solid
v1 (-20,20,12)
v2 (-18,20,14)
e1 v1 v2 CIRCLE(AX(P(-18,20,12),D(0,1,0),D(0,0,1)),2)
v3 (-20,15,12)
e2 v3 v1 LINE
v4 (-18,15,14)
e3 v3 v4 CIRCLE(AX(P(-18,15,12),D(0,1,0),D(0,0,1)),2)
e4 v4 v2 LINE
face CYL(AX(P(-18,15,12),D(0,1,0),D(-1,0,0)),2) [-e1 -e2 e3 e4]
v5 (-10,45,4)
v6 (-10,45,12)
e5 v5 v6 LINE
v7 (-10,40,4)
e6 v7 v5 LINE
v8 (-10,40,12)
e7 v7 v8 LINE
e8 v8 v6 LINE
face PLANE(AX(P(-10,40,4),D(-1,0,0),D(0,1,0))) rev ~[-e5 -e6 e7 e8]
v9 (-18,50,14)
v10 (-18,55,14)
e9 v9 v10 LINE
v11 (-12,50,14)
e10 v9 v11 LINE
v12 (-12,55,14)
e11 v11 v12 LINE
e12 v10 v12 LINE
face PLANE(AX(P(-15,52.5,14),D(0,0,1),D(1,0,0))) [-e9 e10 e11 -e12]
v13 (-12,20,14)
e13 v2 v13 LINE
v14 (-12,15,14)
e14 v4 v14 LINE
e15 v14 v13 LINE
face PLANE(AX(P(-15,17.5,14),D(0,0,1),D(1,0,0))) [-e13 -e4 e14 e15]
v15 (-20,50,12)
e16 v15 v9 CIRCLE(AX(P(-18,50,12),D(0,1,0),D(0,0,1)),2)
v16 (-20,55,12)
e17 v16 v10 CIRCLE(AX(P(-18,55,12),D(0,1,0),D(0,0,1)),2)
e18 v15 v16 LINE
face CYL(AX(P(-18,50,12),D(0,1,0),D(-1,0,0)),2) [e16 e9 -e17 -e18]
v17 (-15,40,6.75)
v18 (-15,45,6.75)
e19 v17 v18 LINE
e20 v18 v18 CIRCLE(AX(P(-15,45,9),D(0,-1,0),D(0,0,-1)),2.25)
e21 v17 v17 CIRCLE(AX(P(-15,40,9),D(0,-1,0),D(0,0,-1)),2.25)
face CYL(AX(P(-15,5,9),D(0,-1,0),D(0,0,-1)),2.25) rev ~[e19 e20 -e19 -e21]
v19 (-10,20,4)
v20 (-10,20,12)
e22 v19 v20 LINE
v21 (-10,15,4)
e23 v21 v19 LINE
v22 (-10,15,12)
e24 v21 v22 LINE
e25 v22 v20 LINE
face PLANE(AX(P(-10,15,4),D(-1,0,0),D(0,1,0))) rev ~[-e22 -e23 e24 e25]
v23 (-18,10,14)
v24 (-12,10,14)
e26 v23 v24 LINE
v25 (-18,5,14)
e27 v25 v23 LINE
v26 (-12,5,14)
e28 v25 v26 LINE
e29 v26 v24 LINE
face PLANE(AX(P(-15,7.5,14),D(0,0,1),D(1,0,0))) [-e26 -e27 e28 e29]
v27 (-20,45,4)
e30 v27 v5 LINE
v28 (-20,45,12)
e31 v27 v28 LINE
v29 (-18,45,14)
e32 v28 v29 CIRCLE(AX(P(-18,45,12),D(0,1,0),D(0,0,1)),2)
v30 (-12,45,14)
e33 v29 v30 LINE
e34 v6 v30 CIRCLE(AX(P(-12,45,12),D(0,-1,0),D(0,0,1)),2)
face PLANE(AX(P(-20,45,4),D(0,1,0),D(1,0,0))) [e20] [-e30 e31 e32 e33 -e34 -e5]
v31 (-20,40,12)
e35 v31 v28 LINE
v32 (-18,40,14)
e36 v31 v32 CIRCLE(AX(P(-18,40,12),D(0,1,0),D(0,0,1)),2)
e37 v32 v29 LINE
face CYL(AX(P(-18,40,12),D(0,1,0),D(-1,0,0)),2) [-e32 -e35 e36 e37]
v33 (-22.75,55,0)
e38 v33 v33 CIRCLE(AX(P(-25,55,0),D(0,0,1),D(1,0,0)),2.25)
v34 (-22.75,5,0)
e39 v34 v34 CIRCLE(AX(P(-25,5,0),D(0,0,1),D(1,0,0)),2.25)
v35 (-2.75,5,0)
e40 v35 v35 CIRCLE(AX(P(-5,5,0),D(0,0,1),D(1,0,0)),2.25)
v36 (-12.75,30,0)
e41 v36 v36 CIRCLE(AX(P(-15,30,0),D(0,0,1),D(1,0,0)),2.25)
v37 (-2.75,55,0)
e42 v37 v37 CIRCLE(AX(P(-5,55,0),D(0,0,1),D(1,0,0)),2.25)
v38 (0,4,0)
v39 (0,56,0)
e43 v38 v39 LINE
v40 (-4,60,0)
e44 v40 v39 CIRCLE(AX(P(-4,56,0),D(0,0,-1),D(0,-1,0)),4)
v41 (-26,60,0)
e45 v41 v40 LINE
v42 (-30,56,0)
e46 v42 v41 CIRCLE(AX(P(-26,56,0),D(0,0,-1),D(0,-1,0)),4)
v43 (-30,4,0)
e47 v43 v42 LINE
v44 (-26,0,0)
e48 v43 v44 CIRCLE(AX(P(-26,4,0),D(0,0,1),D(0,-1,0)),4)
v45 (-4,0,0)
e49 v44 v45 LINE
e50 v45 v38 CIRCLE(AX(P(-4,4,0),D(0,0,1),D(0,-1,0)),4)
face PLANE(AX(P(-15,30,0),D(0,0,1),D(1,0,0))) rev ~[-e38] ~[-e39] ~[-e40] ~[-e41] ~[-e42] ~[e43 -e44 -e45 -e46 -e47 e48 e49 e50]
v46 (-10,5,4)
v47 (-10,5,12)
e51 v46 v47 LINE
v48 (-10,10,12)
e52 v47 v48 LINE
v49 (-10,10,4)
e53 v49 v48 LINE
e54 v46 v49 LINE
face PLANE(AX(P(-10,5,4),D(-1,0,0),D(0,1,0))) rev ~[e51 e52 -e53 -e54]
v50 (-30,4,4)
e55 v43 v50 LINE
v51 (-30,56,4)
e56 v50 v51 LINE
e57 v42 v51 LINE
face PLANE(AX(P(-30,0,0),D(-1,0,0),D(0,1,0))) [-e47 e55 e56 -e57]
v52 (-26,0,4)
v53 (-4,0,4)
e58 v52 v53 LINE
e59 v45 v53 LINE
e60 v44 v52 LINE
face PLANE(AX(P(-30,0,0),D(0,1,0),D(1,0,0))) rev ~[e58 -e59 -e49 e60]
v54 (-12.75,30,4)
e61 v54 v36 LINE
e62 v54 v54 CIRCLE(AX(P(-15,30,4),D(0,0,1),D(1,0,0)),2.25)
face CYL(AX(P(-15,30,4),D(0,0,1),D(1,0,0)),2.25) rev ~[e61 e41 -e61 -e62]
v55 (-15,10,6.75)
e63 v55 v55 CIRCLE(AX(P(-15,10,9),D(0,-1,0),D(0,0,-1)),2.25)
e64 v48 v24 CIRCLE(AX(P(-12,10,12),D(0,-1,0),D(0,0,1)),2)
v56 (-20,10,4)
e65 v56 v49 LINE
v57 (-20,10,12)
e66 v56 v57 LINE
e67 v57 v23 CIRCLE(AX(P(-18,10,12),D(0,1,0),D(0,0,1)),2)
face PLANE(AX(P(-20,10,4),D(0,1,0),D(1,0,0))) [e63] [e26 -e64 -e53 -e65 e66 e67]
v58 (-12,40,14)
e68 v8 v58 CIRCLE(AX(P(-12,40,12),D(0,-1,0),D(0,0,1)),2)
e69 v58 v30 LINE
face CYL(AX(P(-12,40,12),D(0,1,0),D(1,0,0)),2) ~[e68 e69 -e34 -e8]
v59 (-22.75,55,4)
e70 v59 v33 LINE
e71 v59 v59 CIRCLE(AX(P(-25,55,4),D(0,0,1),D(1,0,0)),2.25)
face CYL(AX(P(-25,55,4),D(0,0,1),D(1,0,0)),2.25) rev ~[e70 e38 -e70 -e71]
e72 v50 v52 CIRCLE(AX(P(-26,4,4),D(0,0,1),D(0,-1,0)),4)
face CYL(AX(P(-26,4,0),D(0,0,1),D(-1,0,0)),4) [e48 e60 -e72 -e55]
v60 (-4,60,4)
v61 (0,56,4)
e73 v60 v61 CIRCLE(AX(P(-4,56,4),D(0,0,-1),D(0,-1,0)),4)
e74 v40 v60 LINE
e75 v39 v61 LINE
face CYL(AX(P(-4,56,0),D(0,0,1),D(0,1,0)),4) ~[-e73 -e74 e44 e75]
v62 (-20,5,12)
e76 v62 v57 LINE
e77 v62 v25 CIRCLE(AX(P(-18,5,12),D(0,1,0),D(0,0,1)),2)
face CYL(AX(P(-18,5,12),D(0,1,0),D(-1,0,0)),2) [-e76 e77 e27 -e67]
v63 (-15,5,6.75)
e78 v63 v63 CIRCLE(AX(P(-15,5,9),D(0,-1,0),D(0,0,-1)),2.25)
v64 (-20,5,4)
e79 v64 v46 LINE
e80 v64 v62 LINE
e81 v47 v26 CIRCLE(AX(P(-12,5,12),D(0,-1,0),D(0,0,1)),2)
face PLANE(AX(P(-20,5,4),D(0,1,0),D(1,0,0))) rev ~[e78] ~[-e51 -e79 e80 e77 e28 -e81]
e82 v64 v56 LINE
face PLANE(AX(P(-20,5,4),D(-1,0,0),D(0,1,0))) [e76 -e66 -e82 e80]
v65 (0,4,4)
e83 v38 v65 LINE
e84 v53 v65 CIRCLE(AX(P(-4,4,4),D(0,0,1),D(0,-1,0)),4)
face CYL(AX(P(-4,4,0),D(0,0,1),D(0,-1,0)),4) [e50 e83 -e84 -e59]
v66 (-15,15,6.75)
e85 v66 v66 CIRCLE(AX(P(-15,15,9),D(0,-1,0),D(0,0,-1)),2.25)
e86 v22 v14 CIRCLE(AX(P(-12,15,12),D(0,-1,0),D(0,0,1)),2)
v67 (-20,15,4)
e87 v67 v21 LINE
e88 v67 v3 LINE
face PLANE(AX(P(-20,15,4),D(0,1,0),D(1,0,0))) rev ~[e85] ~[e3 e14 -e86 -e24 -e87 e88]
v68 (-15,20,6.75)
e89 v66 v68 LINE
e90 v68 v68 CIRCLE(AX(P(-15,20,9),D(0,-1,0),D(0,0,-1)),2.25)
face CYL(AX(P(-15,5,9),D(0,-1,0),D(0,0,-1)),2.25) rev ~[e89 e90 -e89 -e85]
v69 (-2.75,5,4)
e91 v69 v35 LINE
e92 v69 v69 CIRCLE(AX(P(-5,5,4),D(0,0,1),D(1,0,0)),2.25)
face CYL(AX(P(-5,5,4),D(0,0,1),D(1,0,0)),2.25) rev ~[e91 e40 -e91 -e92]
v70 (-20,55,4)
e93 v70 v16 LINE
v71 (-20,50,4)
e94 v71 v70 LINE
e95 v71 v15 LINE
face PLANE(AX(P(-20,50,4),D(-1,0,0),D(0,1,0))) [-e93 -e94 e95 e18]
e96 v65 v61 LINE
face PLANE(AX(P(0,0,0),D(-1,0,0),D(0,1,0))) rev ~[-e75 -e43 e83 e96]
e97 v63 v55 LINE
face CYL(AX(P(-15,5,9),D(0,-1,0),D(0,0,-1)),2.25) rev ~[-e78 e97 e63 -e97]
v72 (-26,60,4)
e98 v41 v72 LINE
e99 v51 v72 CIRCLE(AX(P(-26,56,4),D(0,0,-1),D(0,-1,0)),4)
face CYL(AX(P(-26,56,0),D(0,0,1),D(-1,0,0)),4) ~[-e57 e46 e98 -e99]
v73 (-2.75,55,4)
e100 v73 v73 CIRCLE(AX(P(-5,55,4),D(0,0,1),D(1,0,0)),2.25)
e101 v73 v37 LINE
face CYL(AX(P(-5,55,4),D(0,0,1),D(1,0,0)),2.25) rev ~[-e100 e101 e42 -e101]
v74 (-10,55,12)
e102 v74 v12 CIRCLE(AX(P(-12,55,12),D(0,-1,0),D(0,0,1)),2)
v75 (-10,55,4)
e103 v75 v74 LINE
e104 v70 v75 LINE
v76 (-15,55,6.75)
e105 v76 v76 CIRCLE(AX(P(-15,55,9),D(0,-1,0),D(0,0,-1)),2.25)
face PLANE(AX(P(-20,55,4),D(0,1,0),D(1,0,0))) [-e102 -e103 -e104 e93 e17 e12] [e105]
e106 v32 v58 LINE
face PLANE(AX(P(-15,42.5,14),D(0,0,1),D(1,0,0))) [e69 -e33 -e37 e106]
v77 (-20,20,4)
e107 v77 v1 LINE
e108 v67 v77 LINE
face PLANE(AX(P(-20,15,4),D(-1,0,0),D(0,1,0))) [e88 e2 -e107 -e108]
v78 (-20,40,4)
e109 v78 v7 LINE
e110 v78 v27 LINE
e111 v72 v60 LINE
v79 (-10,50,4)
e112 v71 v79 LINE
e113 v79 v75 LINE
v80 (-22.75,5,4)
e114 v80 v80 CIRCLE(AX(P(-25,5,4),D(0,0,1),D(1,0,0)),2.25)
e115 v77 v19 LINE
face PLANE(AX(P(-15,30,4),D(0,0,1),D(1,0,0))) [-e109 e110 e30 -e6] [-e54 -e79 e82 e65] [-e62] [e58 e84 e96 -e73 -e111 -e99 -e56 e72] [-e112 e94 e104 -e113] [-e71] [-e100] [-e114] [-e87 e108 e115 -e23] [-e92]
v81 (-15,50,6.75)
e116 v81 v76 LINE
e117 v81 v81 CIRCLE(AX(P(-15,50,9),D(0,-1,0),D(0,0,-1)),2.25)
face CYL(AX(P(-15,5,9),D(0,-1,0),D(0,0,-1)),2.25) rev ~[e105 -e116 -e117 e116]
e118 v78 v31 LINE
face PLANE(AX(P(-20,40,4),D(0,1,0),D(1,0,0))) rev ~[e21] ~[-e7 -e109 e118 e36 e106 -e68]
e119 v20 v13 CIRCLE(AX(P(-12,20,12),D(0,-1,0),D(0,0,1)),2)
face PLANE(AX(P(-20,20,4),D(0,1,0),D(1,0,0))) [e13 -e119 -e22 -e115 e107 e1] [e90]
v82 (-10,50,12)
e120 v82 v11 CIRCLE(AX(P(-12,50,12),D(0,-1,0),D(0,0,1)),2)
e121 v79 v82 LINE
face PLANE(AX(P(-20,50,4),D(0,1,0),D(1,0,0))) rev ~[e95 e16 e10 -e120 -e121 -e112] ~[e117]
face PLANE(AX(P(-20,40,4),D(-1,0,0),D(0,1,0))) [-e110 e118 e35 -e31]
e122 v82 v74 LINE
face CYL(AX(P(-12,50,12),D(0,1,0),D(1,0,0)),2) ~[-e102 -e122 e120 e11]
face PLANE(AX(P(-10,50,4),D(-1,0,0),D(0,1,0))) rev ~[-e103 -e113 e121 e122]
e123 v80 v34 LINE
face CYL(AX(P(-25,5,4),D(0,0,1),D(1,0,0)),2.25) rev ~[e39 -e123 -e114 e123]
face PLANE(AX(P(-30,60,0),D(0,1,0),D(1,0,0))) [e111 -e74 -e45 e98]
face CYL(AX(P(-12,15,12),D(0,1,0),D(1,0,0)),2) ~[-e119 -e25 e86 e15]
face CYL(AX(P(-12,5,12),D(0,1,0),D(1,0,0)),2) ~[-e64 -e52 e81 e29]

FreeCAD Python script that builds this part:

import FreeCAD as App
import Part
import Sketcher

V = App.Vector
Q = App.Units.Quantity


def edges_at(feature, points):
    """Names of the edges that pass closest to the given points."""
    edges = feature.Shape.Edges
    near = lambda p: min(range(len(edges)), key=lambda i: edges[i].distToShape(Part.Vertex(*p))[0])
    return sorted({f"Edge{near(p) + 1}" for p in points})

doc = App.newDocument("Part")
body = doc.addObject("PartDesign::Body", "Body")

sketch1 = doc.addObject("Sketcher::SketchObject", "Sketch")
body.addObject(sketch1)
sketch1.AttachmentSupport = (doc.XY_Plane, [""])
sketch1.MapMode = "FlatFace"
sketch1.addGeometry([
    Part.LineSegment(V(-30, 60, 0), V(-30, 0, 0)),
    Part.LineSegment(V(-30, 0, 0), V(0, 0, 0)),
    Part.LineSegment(V(0, 0, 0), V(0, 60, 0)),
    Part.LineSegment(V(0, 60, 0), V(-30, 60, 0)),
], False)
sketch1.addConstraint([
    Sketcher.Constraint("Coincident", 0, 2, 1, 1),
    Sketcher.Constraint("Coincident", 1, 2, 2, 1),
    Sketcher.Constraint("Coincident", 2, 2, 3, 1),
    Sketcher.Constraint("Coincident", 3, 2, 0, 1),
    Sketcher.Constraint("Vertical", 0),
    Sketcher.Constraint("Horizontal", 1),
    Sketcher.Constraint("Vertical", 2),
    Sketcher.Constraint("Horizontal", 3),
    Sketcher.Constraint("Coincident", 1, 2, -1, 1),
    Sketcher.Constraint("DistanceX", 1, 1, 1, 2, Q("30 mm")),
    Sketcher.Constraint("DistanceY", 0, 2, 0, 1, Q("60 mm")),
])
pad1 = doc.addObject("PartDesign::Pad", "Pad")
body.addObject(pad1)
pad1.Profile = sketch1
pad1.Length = 4

sketch2 = doc.addObject("Sketcher::SketchObject", "Sketch001")
body.addObject(sketch2)
sketch2.AttachmentSupport = (doc.XY_Plane, [""])
sketch2.MapMode = "FlatFace"
sketch2.AttachmentOffset = App.Placement(V(0, 0, 4), App.Rotation())
sketch2.addGeometry([
    Part.LineSegment(V(-20, 55, 0), V(-20, 50, 0)),
    Part.LineSegment(V(-20, 50, 0), V(-10, 50, 0)),
    Part.LineSegment(V(-10, 50, 0), V(-10, 55, 0)),
    Part.LineSegment(V(-10, 55, 0), V(-20, 55, 0)),
    Part.LineSegment(V(-20, 45, 0), V(-20, 40, 0)),
    Part.LineSegment(V(-20, 40, 0), V(-10, 40, 0)),
    Part.LineSegment(V(-10, 40, 0), V(-10, 45, 0)),
    Part.LineSegment(V(-10, 45, 0), V(-20, 45, 0)),
    Part.LineSegment(V(-20, 20, 0), V(-20, 15, 0)),
    Part.LineSegment(V(-20, 15, 0), V(-10, 15, 0)),
    Part.LineSegment(V(-10, 15, 0), V(-10, 20, 0)),
    Part.LineSegment(V(-10, 20, 0), V(-20, 20, 0)),
    Part.LineSegment(V(-20, 10, 0), V(-20, 5, 0)),
    Part.LineSegment(V(-20, 5, 0), V(-10, 5, 0)),
    Part.LineSegment(V(-10, 5, 0), V(-10, 10, 0)),
    Part.LineSegment(V(-10, 10, 0), V(-20, 10, 0)),
], False)
sketch2.addConstraint([
    Sketcher.Constraint("Coincident", 0, 2, 1, 1),
    Sketcher.Constraint("Coincident", 1, 2, 2, 1),
    Sketcher.Constraint("Coincident", 2, 2, 3, 1),
    Sketcher.Constraint("Coincident", 3, 2, 0, 1),
    Sketcher.Constraint("Coincident", 4, 2, 5, 1),
    Sketcher.Constraint("Coincident", 5, 2, 6, 1),
    Sketcher.Constraint("Coincident", 6, 2, 7, 1),
    Sketcher.Constraint("Coincident", 7, 2, 4, 1),
    Sketcher.Constraint("Coincident", 8, 2, 9, 1),
    Sketcher.Constraint("Coincident", 9, 2, 10, 1),
    Sketcher.Constraint("Coincident", 10, 2, 11, 1),
    Sketcher.Constraint("Coincident", 11, 2, 8, 1),
    Sketcher.Constraint("Coincident", 12, 2, 13, 1),
    Sketcher.Constraint("Coincident", 13, 2, 14, 1),
    Sketcher.Constraint("Coincident", 14, 2, 15, 1),
    Sketcher.Constraint("Coincident", 15, 2, 12, 1),
    Sketcher.Constraint("Vertical", 0),
    Sketcher.Constraint("Horizontal", 1),
    Sketcher.Constraint("Vertical", 2),
    Sketcher.Constraint("Horizontal", 3),
    Sketcher.Constraint("Vertical", 4),
    Sketcher.Constraint("Horizontal", 5),
    Sketcher.Constraint("Vertical", 6),
    Sketcher.Constraint("Horizontal", 7),
    Sketcher.Constraint("Vertical", 8),
    Sketcher.Constraint("Horizontal", 9),
    Sketcher.Constraint("Vertical", 10),
    Sketcher.Constraint("Horizontal", 11),
    Sketcher.Constraint("Vertical", 12),
    Sketcher.Constraint("Horizontal", 13),
    Sketcher.Constraint("Vertical", 14),
    Sketcher.Constraint("Horizontal", 15),
    Sketcher.Constraint("Vertical", 3, 2, 4, 2),
    Sketcher.Constraint("Vertical", 2, 2, 5, 2),
    Sketcher.Constraint("Vertical", 7, 2, 8, 2),
    Sketcher.Constraint("Vertical", 6, 2, 9, 2),
    Sketcher.Constraint("Vertical", 11, 2, 12, 2),
    Sketcher.Constraint("Vertical", 10, 2, 13, 2),
    Sketcher.Constraint("Equal", 2, 4),
    Sketcher.Constraint("Equal", 6, 8),
    Sketcher.Constraint("Equal", 10, 12),
    Sketcher.Constraint("DistanceX", 1, 1, 1, 2, Q("10 mm")),
    Sketcher.Constraint("DistanceY", 0, 2, 0, 1, Q("5 mm")),
    Sketcher.Constraint("DistanceX", 0, 2, -1, 1, Q("20 mm")),
    Sketcher.Constraint("DistanceY", -1, 1, 0, 2, Q("50 mm")),
    Sketcher.Constraint("DistanceY", -1, 1, 4, 2, Q("40 mm")),
    Sketcher.Constraint("DistanceY", -1, 1, 8, 2, Q("15 mm")),
    Sketcher.Constraint("DistanceY", -1, 1, 12, 2, Q("5 mm")),
])
pad2 = doc.addObject("PartDesign::Pad", "Pad001")
body.addObject(pad2)
pad2.Profile = sketch2
pad2.Length = 10

sketch3 = doc.addObject("Sketcher::SketchObject", "Sketch002")
body.addObject(sketch3)
sketch3.AttachmentSupport = (doc.XZ_Plane, [""])
sketch3.MapMode = "FlatFace"
sketch3.AttachmentOffset = App.Placement(V(0, 0, -5), App.Rotation())
sketch3.addGeometry(Part.Circle(V(-15, 9, 0), V(0, 0, 1), 2.2), False)
sketch3.addConstraint([
    Sketcher.Constraint("Diameter", 0, Q("4.5 mm")),
    Sketcher.Constraint("DistanceX", 0, 3, -1, 1, Q("15 mm")),
    Sketcher.Constraint("DistanceY", -1, 1, 0, 3, Q("9 mm")),
])
pocket1 = doc.addObject("PartDesign::Pocket", "Pocket")
body.addObject(pocket1)
pocket1.Profile = sketch3
pocket1.Type = "ThroughAll"
doc.recompute()

fillet = doc.addObject("PartDesign::Fillet", "Fillet")
body.addObject(fillet)
fillet.Base = (pocket1, edges_at(pocket1, [
    (-20, 52.5, 14),
    (-10, 52.5, 14),
    (-20, 42.5, 14),
    (-10, 42.5, 14),
    (-20, 17.5, 14),
    (-10, 17.5, 14),
    (-20, 7.5, 14),
    (-10, 7.5, 14),
]))
fillet.Radius = 2
doc.recompute()

fillet2 = doc.addObject("PartDesign::Fillet", "Fillet001")
body.addObject(fillet2)
fillet2.Base = (fillet, edges_at(fillet, [
    (-30, 60, 2),
    (0, 60, 2),
    (0, 0, 2),
    (-30, 0, 2),
]))
fillet2.Radius = 4

sketch4 = doc.addObject("Sketcher::SketchObject", "Sketch003")
body.addObject(sketch4)
sketch4.AttachmentSupport = (doc.XY_Plane, [""])
sketch4.MapMode = "FlatFace"
sketch4.AttachmentOffset = App.Placement(V(0, 0, 4), App.Rotation())
sketch4.addGeometry([
    Part.Circle(V(-5, 55, 0), V(0, 0, 1), 2.2),
    Part.Circle(V(-25, 55, 0), V(0, 0, 1), 2.2),
    Part.Circle(V(-5, 5, 0), V(0, 0, 1), 2.2),
    Part.Circle(V(-25, 5, 0), V(0, 0, 1), 2.2),
    Part.Circle(V(-15, 30, 0), V(0, 0, 1), 2.2),
], False)
sketch4.addConstraint([
    Sketcher.Constraint("Equal", 0, 1),
    Sketcher.Constraint("Equal", 1, 2),
    Sketcher.Constraint("Equal", 2, 3),
    Sketcher.Constraint("Equal", 3, 4),
    Sketcher.Constraint("Horizontal", 0, 3, 1, 3),
    Sketcher.Constraint("Horizontal", 2, 3, 3, 3),
    Sketcher.Constraint("Vertical", 0, 3, 2, 3),
    Sketcher.Constraint("Vertical", 1, 3, 3, 3),
    Sketcher.Constraint("Diameter", 0, Q("4.5 mm")),
    Sketcher.Constraint("DistanceX", 0, 3, -1, 1, Q("5 mm")),
    Sketcher.Constraint("DistanceY", -1, 1, 0, 3, Q("55 mm")),
    Sketcher.Constraint("DistanceX", 1, 3, -1, 1, Q("25 mm")),
    Sketcher.Constraint("DistanceY", -1, 1, 2, 3, Q("5 mm")),
    Sketcher.Constraint("DistanceX", 4, 3, -1, 1, Q("15 mm")),
    Sketcher.Constraint("DistanceY", -1, 1, 4, 3, Q("30 mm")),
])
pocket2 = doc.addObject("PartDesign::Pocket", "Pocket001")
body.addObject(pocket2)
pocket2.Profile = sketch4
pocket2.Type = "ThroughAll"

doc.recompute()
